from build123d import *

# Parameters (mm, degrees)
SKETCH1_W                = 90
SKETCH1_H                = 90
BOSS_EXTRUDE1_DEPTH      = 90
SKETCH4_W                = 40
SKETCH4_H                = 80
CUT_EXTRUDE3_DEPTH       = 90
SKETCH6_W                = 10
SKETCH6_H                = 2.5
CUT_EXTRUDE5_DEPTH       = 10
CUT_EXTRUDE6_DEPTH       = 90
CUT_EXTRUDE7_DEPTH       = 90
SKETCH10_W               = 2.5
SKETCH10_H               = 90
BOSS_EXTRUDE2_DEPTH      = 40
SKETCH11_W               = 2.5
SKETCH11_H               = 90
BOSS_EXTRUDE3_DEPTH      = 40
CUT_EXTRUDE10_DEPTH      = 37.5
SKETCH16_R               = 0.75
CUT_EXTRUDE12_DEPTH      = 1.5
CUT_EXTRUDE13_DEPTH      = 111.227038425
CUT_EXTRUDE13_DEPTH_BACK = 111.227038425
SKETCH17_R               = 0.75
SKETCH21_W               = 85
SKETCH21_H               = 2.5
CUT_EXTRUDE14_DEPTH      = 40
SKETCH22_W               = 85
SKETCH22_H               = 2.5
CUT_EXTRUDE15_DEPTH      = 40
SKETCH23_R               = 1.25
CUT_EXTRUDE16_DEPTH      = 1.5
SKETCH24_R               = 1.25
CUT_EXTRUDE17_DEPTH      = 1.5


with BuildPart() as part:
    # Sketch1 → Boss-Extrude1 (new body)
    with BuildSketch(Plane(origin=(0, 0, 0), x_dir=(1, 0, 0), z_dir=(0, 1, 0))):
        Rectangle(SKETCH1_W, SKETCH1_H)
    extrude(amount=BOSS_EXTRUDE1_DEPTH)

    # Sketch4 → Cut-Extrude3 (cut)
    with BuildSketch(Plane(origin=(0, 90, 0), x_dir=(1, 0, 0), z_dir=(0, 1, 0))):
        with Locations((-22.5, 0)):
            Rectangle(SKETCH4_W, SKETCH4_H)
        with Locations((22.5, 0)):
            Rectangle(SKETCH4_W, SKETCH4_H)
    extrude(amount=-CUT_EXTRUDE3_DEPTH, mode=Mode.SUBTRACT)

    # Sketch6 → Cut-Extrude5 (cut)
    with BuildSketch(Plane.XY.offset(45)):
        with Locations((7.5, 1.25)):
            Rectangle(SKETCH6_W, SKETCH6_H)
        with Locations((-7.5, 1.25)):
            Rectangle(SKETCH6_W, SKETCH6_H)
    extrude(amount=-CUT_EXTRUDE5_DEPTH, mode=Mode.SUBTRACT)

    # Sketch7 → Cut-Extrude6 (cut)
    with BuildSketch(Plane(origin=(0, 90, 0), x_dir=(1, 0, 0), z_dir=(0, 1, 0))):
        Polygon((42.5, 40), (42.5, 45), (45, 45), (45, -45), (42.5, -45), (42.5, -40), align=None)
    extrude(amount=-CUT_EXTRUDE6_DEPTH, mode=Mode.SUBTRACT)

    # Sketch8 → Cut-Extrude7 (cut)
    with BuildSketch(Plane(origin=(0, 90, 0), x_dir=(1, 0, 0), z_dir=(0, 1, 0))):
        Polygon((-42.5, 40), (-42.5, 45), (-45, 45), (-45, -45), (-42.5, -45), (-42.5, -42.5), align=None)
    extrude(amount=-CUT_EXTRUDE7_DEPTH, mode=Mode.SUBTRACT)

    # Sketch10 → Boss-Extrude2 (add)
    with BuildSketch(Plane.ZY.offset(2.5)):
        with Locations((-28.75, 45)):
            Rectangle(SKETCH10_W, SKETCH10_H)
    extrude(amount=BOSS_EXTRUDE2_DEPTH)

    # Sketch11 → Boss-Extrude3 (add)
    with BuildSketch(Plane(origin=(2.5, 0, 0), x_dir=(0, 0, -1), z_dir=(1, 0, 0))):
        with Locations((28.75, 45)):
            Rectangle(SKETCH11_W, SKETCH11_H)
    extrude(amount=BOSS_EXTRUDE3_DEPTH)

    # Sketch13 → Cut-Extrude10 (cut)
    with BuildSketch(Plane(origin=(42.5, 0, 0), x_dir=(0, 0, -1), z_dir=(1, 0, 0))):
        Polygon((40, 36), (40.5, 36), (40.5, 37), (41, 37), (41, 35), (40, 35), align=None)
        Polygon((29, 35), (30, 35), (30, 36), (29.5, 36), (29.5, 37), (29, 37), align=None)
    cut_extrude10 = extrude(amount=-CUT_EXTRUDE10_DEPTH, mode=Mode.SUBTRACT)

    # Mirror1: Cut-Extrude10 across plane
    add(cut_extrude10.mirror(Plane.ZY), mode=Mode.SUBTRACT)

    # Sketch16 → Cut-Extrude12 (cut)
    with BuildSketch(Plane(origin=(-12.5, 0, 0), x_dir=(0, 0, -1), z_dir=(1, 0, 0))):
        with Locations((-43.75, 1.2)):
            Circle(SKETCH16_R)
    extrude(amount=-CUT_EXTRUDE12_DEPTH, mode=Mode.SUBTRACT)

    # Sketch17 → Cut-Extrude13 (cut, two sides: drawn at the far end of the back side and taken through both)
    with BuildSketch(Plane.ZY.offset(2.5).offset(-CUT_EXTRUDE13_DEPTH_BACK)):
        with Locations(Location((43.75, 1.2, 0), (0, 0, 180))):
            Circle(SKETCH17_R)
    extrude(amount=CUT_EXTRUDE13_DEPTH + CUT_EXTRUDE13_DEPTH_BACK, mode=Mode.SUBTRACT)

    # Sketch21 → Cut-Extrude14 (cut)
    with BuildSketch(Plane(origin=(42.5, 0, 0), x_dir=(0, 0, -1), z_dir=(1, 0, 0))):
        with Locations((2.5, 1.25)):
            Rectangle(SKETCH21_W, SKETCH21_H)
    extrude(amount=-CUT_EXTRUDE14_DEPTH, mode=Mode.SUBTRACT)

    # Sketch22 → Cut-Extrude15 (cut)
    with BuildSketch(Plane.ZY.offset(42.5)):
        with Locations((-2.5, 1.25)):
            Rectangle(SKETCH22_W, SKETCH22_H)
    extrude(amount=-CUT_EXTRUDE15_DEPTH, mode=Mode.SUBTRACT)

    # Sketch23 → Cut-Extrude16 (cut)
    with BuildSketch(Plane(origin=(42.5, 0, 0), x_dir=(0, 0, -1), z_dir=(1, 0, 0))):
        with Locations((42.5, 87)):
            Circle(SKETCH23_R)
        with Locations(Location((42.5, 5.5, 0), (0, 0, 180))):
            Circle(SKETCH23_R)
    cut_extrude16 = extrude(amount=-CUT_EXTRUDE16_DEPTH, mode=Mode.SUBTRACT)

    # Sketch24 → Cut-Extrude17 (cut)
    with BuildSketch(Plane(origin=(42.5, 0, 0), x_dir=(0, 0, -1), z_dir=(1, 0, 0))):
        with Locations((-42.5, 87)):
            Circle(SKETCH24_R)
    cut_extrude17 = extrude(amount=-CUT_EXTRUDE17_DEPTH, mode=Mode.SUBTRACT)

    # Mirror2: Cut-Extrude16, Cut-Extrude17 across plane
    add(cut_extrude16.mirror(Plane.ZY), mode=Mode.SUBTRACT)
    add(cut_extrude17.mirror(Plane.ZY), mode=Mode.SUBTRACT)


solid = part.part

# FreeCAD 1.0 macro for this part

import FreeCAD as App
import Part
import Sketcher
from FreeCAD import Vector


def add_polygon(sketch, points):
    """Adds a closed chain of lines whose ends are joined by coincident constraints."""
    first, n = sketch.GeometryCount, len(points)
    for a, b in zip(points, points[1:] + points[:1]):
        sketch.addGeometry(Part.LineSegment(App.Vector(*a, 0), App.Vector(*b, 0)), False)
    for i in range(n):
        sketch.addConstraint(Sketcher.Constraint("Coincident", first + i, 2, first + (i + 1) % n, 1))

doc = App.newDocument("Part")
params = doc.addObject("Spreadsheet::Sheet", "Params")
for row, (alias, value) in enumerate([
    ("sketch1_width", "90 mm"),
    ("pad1_length", "90 mm"),
    ("sketch2_width", "40 mm"),
    ("sketch2_height", "80 mm"),
    ("pocket1_length", "90 mm"),
    ("sketch3_width", "10 mm"),
    ("sketch3_height", "2.5 mm"),
    ("pocket2_length", "10 mm"),
    ("sketch4_height", "90 mm"),
    ("sketch4_width", "2.5 mm"),
    ("pocket3_length", "90 mm"),
    ("sketch5_height", "90 mm"),
    ("sketch5_width", "2.5 mm"),
    ("pocket4_length", "90 mm"),
    ("sketch6_width", "90 mm"),
    ("sketch6_height", "2.5 mm"),
    ("pad2_length", "40 mm"),
    ("sketch7_width", "90 mm"),
    ("sketch7_height", "2.5 mm"),
    ("pad3_length", "40 mm"),
    ("sketch8_width", "1 mm"),
    ("pocket5_length", "37.5 mm"),
    ("sketch9_diameter", "1.5 mm"),
    ("pocket6_length", "1.5 mm"),
    ("sketch10_diameter", "1.5 mm"),
    ("sketch11_height", "85 mm"),
    ("sketch11_width", "2.5 mm"),
    ("pocket8_length", "40 mm"),
    ("sketch12_height", "85 mm"),
    ("sketch12_width", "2.5 mm"),
    ("pocket9_length", "40 mm"),
    ("sketch13_diameter", "2.5 mm"),
    ("pocket10_length", "1.5 mm"),
    ("sketch14_diameter", "2.5 mm"),
    ("pocket11_length", "1.5 mm"),
], start=1):
    params.set(f"A{row}", alias)
    params.set(f"B{row}", "=" + value)
    params.setAlias(f"B{row}", alias)

body = doc.addObject("PartDesign::Body", "Body")

# Sketch on XZ plane
sketch1 = body.newObject("Sketcher::SketchObject", "Sketch")
sketch1.AttachmentSupport = (doc.getObject("XZ_Plane"), [""])
sketch1.MapMode = "FlatFace"
add_polygon(sketch1, [(-45, -45), (-45, 45), (45, 45), (45, -45)])  # lines 0-3
sketch1.addConstraint(Sketcher.Constraint("Vertical", 0))
sketch1.addConstraint(Sketcher.Constraint("Horizontal", 1))
sketch1.addConstraint(Sketcher.Constraint("Vertical", 2))
sketch1.addConstraint(Sketcher.Constraint("Horizontal", 3))
sketch1.addConstraint(Sketcher.Constraint("Symmetric", 0, 2, 2, 2, -1, 1))
sketch1.addConstraint(Sketcher.Constraint("Equal", 3, 0))
sketch1.addConstraint(Sketcher.Constraint("DistanceX", 1, 1, 1, 2, 90.0))
sketch1.setExpression("Constraints[10]", "Params.sketch1_width")
pad1 = body.newObject("PartDesign::Pad", "Pad")
pad1.Profile = sketch1
pad1.setExpression("Length", "Params.pad1_length")
pad1.Reversed = True

# Sketch on XZ plane
sketch2 = body.newObject("Sketcher::SketchObject", "Sketch001")
sketch2.AttachmentSupport = (doc.getObject("XZ_Plane"), [""])
sketch2.MapMode = "FlatFace"
sketch2.AttachmentOffset = App.Placement(Vector(0, 0, -90), App.Rotation())
add_polygon(sketch2, [(-42, -40), (-42, 40), (-2, 40), (-2, -40)])  # lines 0-3
add_polygon(sketch2, [(2, -40), (2, 40), (42, 40), (42, -40)])  # lines 4-7
sketch2.addConstraint(Sketcher.Constraint("Vertical", 0))
sketch2.addConstraint(Sketcher.Constraint("Horizontal", 1))
sketch2.addConstraint(Sketcher.Constraint("Vertical", 2))
sketch2.addConstraint(Sketcher.Constraint("Horizontal", 3))
sketch2.addConstraint(Sketcher.Constraint("Vertical", 4))
sketch2.addConstraint(Sketcher.Constraint("Horizontal", 5))
sketch2.addConstraint(Sketcher.Constraint("Vertical", 6))
sketch2.addConstraint(Sketcher.Constraint("Horizontal", 7))
sketch2.addConstraint(Sketcher.Constraint("Symmetric", 2, 2, 4, 2, -1, 1))
sketch2.addConstraint(Sketcher.Constraint("Symmetric", 0, 2, 6, 2, -1, 1))
sketch2.addConstraint(Sketcher.Constraint("Horizontal", 1, 2, 4, 2))
sketch2.addConstraint(Sketcher.Constraint("DistanceX", 1, 1, 1, 2, 40.0))
sketch2.addConstraint(Sketcher.Constraint("DistanceY", 0, 1, 0, 2, 80.0))
sketch2.addConstraint(Sketcher.Constraint("DistanceX", 1, 2, 4, 2, 5.0))
sketch2.setExpression("Constraints[19]", "Params.sketch2_width")
sketch2.setExpression("Constraints[20]", "Params.sketch2_height")
pocket1 = body.newObject("PartDesign::Pocket", "Pocket")
pocket1.Profile = sketch2
pocket1.setExpression("Length", "Params.pocket1_length")
pocket1.Reversed = True

# Sketch on XY plane
sketch3 = body.newObject("Sketcher::SketchObject", "Sketch002")
sketch3.AttachmentSupport = (doc.getObject("XY_Plane"), [""])
sketch3.MapMode = "FlatFace"
sketch3.AttachmentOffset = App.Placement(Vector(0, 0, 45), App.Rotation())
add_polygon(sketch3, [(2.5, 2.5), (2.5, 0), (12.5, 0), (12.5, 2.5)])  # lines 0-3
add_polygon(sketch3, [(-12.5, 2.5), (-12.5, 0), (-2.5, 0), (-2.5, 2.5)])  # lines 4-7
sketch3.addConstraint(Sketcher.Constraint("Vertical", 0))
sketch3.addConstraint(Sketcher.Constraint("Horizontal", 1))
sketch3.addConstraint(Sketcher.Constraint("Vertical", 2))
sketch3.addConstraint(Sketcher.Constraint("Horizontal", 3))
sketch3.addConstraint(Sketcher.Constraint("Vertical", 4))
sketch3.addConstraint(Sketcher.Constraint("Horizontal", 5))
sketch3.addConstraint(Sketcher.Constraint("Vertical", 6))
sketch3.addConstraint(Sketcher.Constraint("Horizontal", 7))
sketch3.addConstraint(Sketcher.Constraint("Symmetric", 1, 2, 4, 2, -1, 1))
sketch3.addConstraint(Sketcher.Constraint("Symmetric", 0, 2, 5, 2, -2))
sketch3.addConstraint(Sketcher.Constraint("Horizontal", 3, 2, 6, 2))
sketch3.addConstraint(Sketcher.Constraint("DistanceX", 1, 1, 1, 2, 10.0))
sketch3.addConstraint(Sketcher.Constraint("DistanceY", 0, 2, 0, 1, 2.5))
sketch3.addConstraint(Sketcher.Constraint("DistanceX", 4, 2, 0, 2, 15.0))
sketch3.setExpression("Constraints[19]", "Params.sketch3_width")
sketch3.setExpression("Constraints[20]", "Params.sketch3_height")
pocket2 = body.newObject("PartDesign::Pocket", "Pocket001")
pocket2.Profile = sketch3
pocket2.setExpression("Length", "Params.pocket2_length")

# Sketch on XZ plane
sketch4 = body.newObject("Sketcher::SketchObject", "Sketch003")
sketch4.AttachmentSupport = (doc.getObject("XZ_Plane"), [""])
sketch4.MapMode = "FlatFace"
sketch4.AttachmentOffset = App.Placement(Vector(0, 0, -90), App.Rotation())
add_polygon(sketch4, [(42.5, -45), (42.5, 45), (45, 45), (45, -45)])  # lines 0-3
sketch4.addConstraint(Sketcher.Constraint("Vertical", 0))
sketch4.addConstraint(Sketcher.Constraint("Horizontal", 1))
sketch4.addConstraint(Sketcher.Constraint("Vertical", 2))
sketch4.addConstraint(Sketcher.Constraint("Horizontal", 3))
sketch4.addConstraint(Sketcher.Constraint("DistanceY", 0, 1, 0, 2, 90.0))
sketch4.addConstraint(Sketcher.Constraint("DistanceX", 1, 1, 1, 2, 2.5))
sketch4.addConstraint(Sketcher.Constraint("DistanceY", -1, 1, 0, 2, 45.0))
sketch4.addConstraint(Sketcher.Constraint("DistanceX", -1, 1, 1, 2, 45.0))
sketch4.setExpression("Constraints[8]", "Params.sketch4_height")
sketch4.setExpression("Constraints[9]", "Params.sketch4_width")
pocket3 = body.newObject("PartDesign::Pocket", "Pocket002")
pocket3.Profile = sketch4
pocket3.setExpression("Length", "Params.pocket3_length")
pocket3.Reversed = True

# Sketch on XZ plane
sketch5 = body.newObject("Sketcher::SketchObject", "Sketch004")
sketch5.AttachmentSupport = (doc.getObject("XZ_Plane"), [""])
sketch5.MapMode = "FlatFace"
sketch5.AttachmentOffset = App.Placement(Vector(0, 0, -90), App.Rotation())
add_polygon(sketch5, [(-42.5, -45), (-45, -45), (-45, 45), (-42.5, 45)])  # lines 0-3
sketch5.addConstraint(Sketcher.Constraint("Horizontal", 0))
sketch5.addConstraint(Sketcher.Constraint("Vertical", 1))
sketch5.addConstraint(Sketcher.Constraint("Horizontal", 2))
sketch5.addConstraint(Sketcher.Constraint("Vertical", 3))
sketch5.addConstraint(Sketcher.Constraint("DistanceY", 1, 1, 1, 2, 90.0))
sketch5.addConstraint(Sketcher.Constraint("DistanceX", 0, 2, 0, 1, 2.5))
sketch5.addConstraint(Sketcher.Constraint("DistanceX", 0, 2, -1, 1, 45.0))
sketch5.addConstraint(Sketcher.Constraint("DistanceY", 0, 2, -1, 1, 45.0))
sketch5.setExpression("Constraints[8]", "Params.sketch5_height")
sketch5.setExpression("Constraints[9]", "Params.sketch5_width")
pocket4 = body.newObject("PartDesign::Pocket", "Pocket003")
pocket4.Profile = sketch5
pocket4.setExpression("Length", "Params.pocket4_length")
pocket4.Reversed = True

# Sketch on YZ plane
sketch6 = body.newObject("Sketcher::SketchObject", "Sketch005")
sketch6.AttachmentSupport = (doc.getObject("YZ_Plane"), [""])
sketch6.MapMode = "FlatFace"
sketch6.AttachmentOffset = App.Placement(Vector(0, 0, -2.5), App.Rotation())
add_polygon(sketch6, [(90, -30), (0, -30), (0, -27.5), (90, -27.5)])  # lines 0-3
sketch6.addConstraint(Sketcher.Constraint("Horizontal", 0))
sketch6.addConstraint(Sketcher.Constraint("Vertical", 1))
sketch6.addConstraint(Sketcher.Constraint("Horizontal", 2))
sketch6.addConstraint(Sketcher.Constraint("Vertical", 3))
sketch6.addConstraint(Sketcher.Constraint("PointOnObject", 0, 2, -2))
sketch6.addConstraint(Sketcher.Constraint("DistanceX", 0, 2, 0, 1, 90.0))
sketch6.addConstraint(Sketcher.Constraint("DistanceY", 1, 1, 1, 2, 2.5))
sketch6.addConstraint(Sketcher.Constraint("DistanceY", 0, 2, -1, 1, 30.0))
sketch6.setExpression("Constraints[9]", "Params.sketch6_width")
sketch6.setExpression("Constraints[10]", "Params.sketch6_height")
pad2 = body.newObject("PartDesign::Pad", "Pad001")
pad2.Profile = sketch6
pad2.setExpression("Length", "Params.pad2_length")
pad2.Reversed = True

# Sketch on YZ plane
sketch7 = body.newObject("Sketcher::SketchObject", "Sketch006")
sketch7.AttachmentSupport = (doc.getObject("YZ_Plane"), [""])
sketch7.MapMode = "FlatFace"
sketch7.AttachmentOffset = App.Placement(Vector(0, 0, 2.5), App.Rotation())
add_polygon(sketch7, [(90, -27.5), (0, -27.5), (0, -30), (90, -30)])  # lines 0-3
sketch7.addConstraint(Sketcher.Constraint("Horizontal", 0))
sketch7.addConstraint(Sketcher.Constraint("Vertical", 1))
sketch7.addConstraint(Sketcher.Constraint("Horizontal", 2))
sketch7.addConstraint(Sketcher.Constraint("Vertical", 3))
sketch7.addConstraint(Sketcher.Constraint("PointOnObject", 0, 2, -2))
sketch7.addConstraint(Sketcher.Constraint("DistanceX", 0, 2, 0, 1, 90.0))
sketch7.addConstraint(Sketcher.Constraint("DistanceY", 1, 2, 1, 1, 2.5))
sketch7.addConstraint(Sketcher.Constraint("DistanceY", 1, 2, -1, 1, 30.0))
sketch7.setExpression("Constraints[9]", "Params.sketch7_width")
sketch7.setExpression("Constraints[10]", "Params.sketch7_height")
pad3 = body.newObject("PartDesign::Pad", "Pad002")
pad3.Profile = sketch7
pad3.setExpression("Length", "Params.pad3_length")

# Sketch on YZ plane
sketch8 = body.newObject("Sketcher::SketchObject", "Sketch007")
sketch8.AttachmentSupport = (doc.getObject("YZ_Plane"), [""])
sketch8.MapMode = "FlatFace"
sketch8.AttachmentOffset = App.Placement(Vector(0, 0, 42.5), App.Rotation())
add_polygon(sketch8, [(36, -40.5), (36, -40), (35, -40), (35, -41), (37, -41), (37, -40.5)])  # lines 0-5
add_polygon(sketch8, [(35, -29), (35, -30), (36, -30), (36, -29.5), (37, -29.5), (37, -29)])  # lines 6-11
sketch8.addConstraint(Sketcher.Constraint("Vertical", 0))
sketch8.addConstraint(Sketcher.Constraint("Horizontal", 1))
sketch8.addConstraint(Sketcher.Constraint("Vertical", 2))
sketch8.addConstraint(Sketcher.Constraint("Horizontal", 3))
sketch8.addConstraint(Sketcher.Constraint("Vertical", 4))
sketch8.addConstraint(Sketcher.Constraint("Horizontal", 5))
sketch8.addConstraint(Sketcher.Constraint("Vertical", 6))
sketch8.addConstraint(Sketcher.Constraint("Horizontal", 7))
sketch8.addConstraint(Sketcher.Constraint("Vertical", 8))
sketch8.addConstraint(Sketcher.Constraint("Horizontal", 9))
sketch8.addConstraint(Sketcher.Constraint("Vertical", 10))
sketch8.addConstraint(Sketcher.Constraint("Horizontal", 11))
sketch8.addConstraint(Sketcher.Constraint("Vertical", 2, 2, 6, 2))
sketch8.addConstraint(Sketcher.Constraint("Vertical", 5, 2, 7, 2))
sketch8.addConstraint(Sketcher.Constraint("Vertical", 4, 2, 9, 2))
sketch8.addConstraint(Sketcher.Constraint("Equal", 1, 5))
sketch8.addConstraint(Sketcher.Constraint("Equal", 9, 2))
sketch8.addConstraint(Sketcher.Constraint("Equal", 0, 4))
sketch8.addConstraint(Sketcher.Constraint("Equal", 2, 6))
sketch8.addConstraint(Sketcher.Constraint("Equal", 4, 8))
sketch8.addConstraint(Sketcher.Constraint("DistanceX", 1, 2, 1, 1, 1.0))
sketch8.addConstraint(Sketcher.Constraint("DistanceX", -1, 1, 0, 2, 36.0))
sketch8.addConstraint(Sketcher.Constraint("DistanceY", 0, 2, -1, 1, 40.0))
sketch8.addConstraint(Sketcher.Constraint("DistanceY", 6, 2, -1, 1, 30.0))
sketch8.setExpression("Constraints[32]", "Params.sketch8_width")
pocket5 = body.newObject("PartDesign::Pocket", "Pocket004")
pocket5.Profile = sketch8
pocket5.setExpression("Length", "Params.pocket5_length")
doc.recompute()

mirrored = body.newObject("PartDesign::Mirrored", "Mirrored")
mirrored.Originals = [pocket5]
mirrored.MirrorPlane = (doc.getObject("YZ_Plane"), [""])
body.Tip = mirrored

# Sketch on YZ plane
sketch9 = body.newObject("Sketcher::SketchObject", "Sketch008")
sketch9.AttachmentSupport = (doc.getObject("YZ_Plane"), [""])
sketch9.MapMode = "FlatFace"
sketch9.AttachmentOffset = App.Placement(Vector(0, 0, -12.5), App.Rotation())
sketch9.addGeometry(Part.Circle(Vector(1.2, 43.8, 0), Vector(0, 0, 1), 0.8), False)
sketch9.addConstraint(Sketcher.Constraint("Diameter", 0, 1.5))
sketch9.addConstraint(Sketcher.Constraint("DistanceX", -1, 1, 0, 3, 1.2))
sketch9.addConstraint(Sketcher.Constraint("DistanceY", -1, 1, 0, 3, 43.75))
sketch9.setExpression("Constraints[0]", "Params.sketch9_diameter")
pocket6 = body.newObject("PartDesign::Pocket", "Pocket005")
pocket6.Profile = sketch9
pocket6.setExpression("Length", "Params.pocket6_length")

# Sketch on YZ plane
sketch10 = body.newObject("Sketcher::SketchObject", "Sketch009")
sketch10.AttachmentSupport = (doc.getObject("YZ_Plane"), [""])
sketch10.MapMode = "FlatFace"
sketch10.AttachmentOffset = App.Placement(Vector(0, 0, -2.5), App.Rotation())
sketch10.addGeometry(Part.Circle(Vector(1.2, 43.8, 0), Vector(0, 0, 1), 0.8), False)
sketch10.addConstraint(Sketcher.Constraint("Diameter", 0, 1.5))
sketch10.addConstraint(Sketcher.Constraint("DistanceX", -1, 1, 0, 3, 1.2))
sketch10.addConstraint(Sketcher.Constraint("DistanceY", -1, 1, 0, 3, 43.75))
sketch10.setExpression("Constraints[0]", "Params.sketch10_diameter")
pocket7 = body.newObject("PartDesign::Pocket", "Pocket006")
pocket7.Profile = sketch10
pocket7.Type = "ThroughAll"
pocket7.Midplane = True

# Sketch on YZ plane
sketch11 = body.newObject("Sketcher::SketchObject", "Sketch010")
sketch11.AttachmentSupport = (doc.getObject("YZ_Plane"), [""])
sketch11.MapMode = "FlatFace"
sketch11.AttachmentOffset = App.Placement(Vector(0, 0, 42.5), App.Rotation())
add_polygon(sketch11, [(2.5, 40), (0, 40), (0, -45), (2.5, -45)])  # lines 0-3
sketch11.addConstraint(Sketcher.Constraint("Horizontal", 0))
sketch11.addConstraint(Sketcher.Constraint("Vertical", 1))
sketch11.addConstraint(Sketcher.Constraint("Horizontal", 2))
sketch11.addConstraint(Sketcher.Constraint("Vertical", 3))
sketch11.addConstraint(Sketcher.Constraint("PointOnObject", 0, 2, -2))
sketch11.addConstraint(Sketcher.Constraint("DistanceY", 1, 2, 1, 1, 85.0))
sketch11.addConstraint(Sketcher.Constraint("DistanceX", 0, 2, 0, 1, 2.5))
sketch11.addConstraint(Sketcher.Constraint("DistanceY", -1, 1, 0, 2, 40.0))
sketch11.setExpression("Constraints[9]", "Params.sketch11_height")
sketch11.setExpression("Constraints[10]", "Params.sketch11_width")
pocket8 = body.newObject("PartDesign::Pocket", "Pocket007")
pocket8.Profile = sketch11
pocket8.setExpression("Length", "Params.pocket8_length")

# Sketch on YZ plane
sketch12 = body.newObject("Sketcher::SketchObject", "Sketch011")
sketch12.AttachmentSupport = (doc.getObject("YZ_Plane"), [""])
sketch12.MapMode = "FlatFace"
sketch12.AttachmentOffset = App.Placement(Vector(0, 0, -42.5), App.Rotation())
add_polygon(sketch12, [(2.5, -45), (0, -45), (0, 40), (2.5, 40)])  # lines 0-3
sketch12.addConstraint(Sketcher.Constraint("Horizontal", 0))
sketch12.addConstraint(Sketcher.Constraint("Vertical", 1))
sketch12.addConstraint(Sketcher.Constraint("Horizontal", 2))
sketch12.addConstraint(Sketcher.Constraint("Vertical", 3))
sketch12.addConstraint(Sketcher.Constraint("PointOnObject", 0, 2, -2))
sketch12.addConstraint(Sketcher.Constraint("DistanceY", 1, 1, 1, 2, 85.0))
sketch12.addConstraint(Sketcher.Constraint("DistanceX", 0, 2, 0, 1, 2.5))
sketch12.addConstraint(Sketcher.Constraint("DistanceY", 0, 2, -1, 1, 45.0))
sketch12.setExpression("Constraints[9]", "Params.sketch12_height")
sketch12.setExpression("Constraints[10]", "Params.sketch12_width")
pocket9 = body.newObject("PartDesign::Pocket", "Pocket008")
pocket9.Profile = sketch12
pocket9.setExpression("Length", "Params.pocket9_length")
pocket9.Reversed = True

# Sketch on YZ plane
sketch13 = body.newObject("Sketcher::SketchObject", "Sketch012")
sketch13.AttachmentSupport = (doc.getObject("YZ_Plane"), [""])
sketch13.MapMode = "FlatFace"
sketch13.AttachmentOffset = App.Placement(Vector(0, 0, 42.5), App.Rotation())
sketch13.addGeometry(Part.Circle(Vector(87, -42.5, 0), Vector(0, 0, 1), 1.2), False)
sketch13.addGeometry(Part.Circle(Vector(5.5, -42.5, 0), Vector(0, 0, 1), 1.2), False)
sketch13.addConstraint(Sketcher.Constraint("Equal", 0, 1))
sketch13.addConstraint(Sketcher.Constraint("Horizontal", 0, 3, 1, 3))
sketch13.addConstraint(Sketcher.Constraint("Diameter", 0, 2.5))
sketch13.addConstraint(Sketcher.Constraint("DistanceX", -1, 1, 0, 3, 87.0))
sketch13.addConstraint(Sketcher.Constraint("DistanceY", 0, 3, -1, 1, 42.5))
sketch13.addConstraint(Sketcher.Constraint("DistanceX", -1, 1, 1, 3, 5.5))
sketch13.setExpression("Constraints[2]", "Params.sketch13_diameter")
pocket10 = body.newObject("PartDesign::Pocket", "Pocket009")
pocket10.Profile = sketch13
pocket10.setExpression("Length", "Params.pocket10_length")

# Sketch on YZ plane
sketch14 = body.newObject("Sketcher::SketchObject", "Sketch013")
sketch14.AttachmentSupport = (doc.getObject("YZ_Plane"), [""])
sketch14.MapMode = "FlatFace"
sketch14.AttachmentOffset = App.Placement(Vector(0, 0, 42.5), App.Rotation())
sketch14.addGeometry(Part.Circle(Vector(87, 42.5, 0), Vector(0, 0, 1), 1.2), False)
sketch14.addConstraint(Sketcher.Constraint("Diameter", 0, 2.5))
sketch14.addConstraint(Sketcher.Constraint("DistanceX", -1, 1, 0, 3, 87.0))
sketch14.addConstraint(Sketcher.Constraint("DistanceY", -1, 1, 0, 3, 42.5))
sketch14.setExpression("Constraints[0]", "Params.sketch14_diameter")
pocket11 = body.newObject("PartDesign::Pocket", "Pocket010")
pocket11.Profile = sketch14
pocket11.setExpression("Length", "Params.pocket11_length")
doc.recompute()

mirrored2 = body.newObject("PartDesign::Mirrored", "Mirrored001")
mirrored2.Originals = [pocket10, pocket11]
mirrored2.MirrorPlane = (doc.getObject("YZ_Plane"), [""])
body.Tip = mirrored2

doc.recompute()
